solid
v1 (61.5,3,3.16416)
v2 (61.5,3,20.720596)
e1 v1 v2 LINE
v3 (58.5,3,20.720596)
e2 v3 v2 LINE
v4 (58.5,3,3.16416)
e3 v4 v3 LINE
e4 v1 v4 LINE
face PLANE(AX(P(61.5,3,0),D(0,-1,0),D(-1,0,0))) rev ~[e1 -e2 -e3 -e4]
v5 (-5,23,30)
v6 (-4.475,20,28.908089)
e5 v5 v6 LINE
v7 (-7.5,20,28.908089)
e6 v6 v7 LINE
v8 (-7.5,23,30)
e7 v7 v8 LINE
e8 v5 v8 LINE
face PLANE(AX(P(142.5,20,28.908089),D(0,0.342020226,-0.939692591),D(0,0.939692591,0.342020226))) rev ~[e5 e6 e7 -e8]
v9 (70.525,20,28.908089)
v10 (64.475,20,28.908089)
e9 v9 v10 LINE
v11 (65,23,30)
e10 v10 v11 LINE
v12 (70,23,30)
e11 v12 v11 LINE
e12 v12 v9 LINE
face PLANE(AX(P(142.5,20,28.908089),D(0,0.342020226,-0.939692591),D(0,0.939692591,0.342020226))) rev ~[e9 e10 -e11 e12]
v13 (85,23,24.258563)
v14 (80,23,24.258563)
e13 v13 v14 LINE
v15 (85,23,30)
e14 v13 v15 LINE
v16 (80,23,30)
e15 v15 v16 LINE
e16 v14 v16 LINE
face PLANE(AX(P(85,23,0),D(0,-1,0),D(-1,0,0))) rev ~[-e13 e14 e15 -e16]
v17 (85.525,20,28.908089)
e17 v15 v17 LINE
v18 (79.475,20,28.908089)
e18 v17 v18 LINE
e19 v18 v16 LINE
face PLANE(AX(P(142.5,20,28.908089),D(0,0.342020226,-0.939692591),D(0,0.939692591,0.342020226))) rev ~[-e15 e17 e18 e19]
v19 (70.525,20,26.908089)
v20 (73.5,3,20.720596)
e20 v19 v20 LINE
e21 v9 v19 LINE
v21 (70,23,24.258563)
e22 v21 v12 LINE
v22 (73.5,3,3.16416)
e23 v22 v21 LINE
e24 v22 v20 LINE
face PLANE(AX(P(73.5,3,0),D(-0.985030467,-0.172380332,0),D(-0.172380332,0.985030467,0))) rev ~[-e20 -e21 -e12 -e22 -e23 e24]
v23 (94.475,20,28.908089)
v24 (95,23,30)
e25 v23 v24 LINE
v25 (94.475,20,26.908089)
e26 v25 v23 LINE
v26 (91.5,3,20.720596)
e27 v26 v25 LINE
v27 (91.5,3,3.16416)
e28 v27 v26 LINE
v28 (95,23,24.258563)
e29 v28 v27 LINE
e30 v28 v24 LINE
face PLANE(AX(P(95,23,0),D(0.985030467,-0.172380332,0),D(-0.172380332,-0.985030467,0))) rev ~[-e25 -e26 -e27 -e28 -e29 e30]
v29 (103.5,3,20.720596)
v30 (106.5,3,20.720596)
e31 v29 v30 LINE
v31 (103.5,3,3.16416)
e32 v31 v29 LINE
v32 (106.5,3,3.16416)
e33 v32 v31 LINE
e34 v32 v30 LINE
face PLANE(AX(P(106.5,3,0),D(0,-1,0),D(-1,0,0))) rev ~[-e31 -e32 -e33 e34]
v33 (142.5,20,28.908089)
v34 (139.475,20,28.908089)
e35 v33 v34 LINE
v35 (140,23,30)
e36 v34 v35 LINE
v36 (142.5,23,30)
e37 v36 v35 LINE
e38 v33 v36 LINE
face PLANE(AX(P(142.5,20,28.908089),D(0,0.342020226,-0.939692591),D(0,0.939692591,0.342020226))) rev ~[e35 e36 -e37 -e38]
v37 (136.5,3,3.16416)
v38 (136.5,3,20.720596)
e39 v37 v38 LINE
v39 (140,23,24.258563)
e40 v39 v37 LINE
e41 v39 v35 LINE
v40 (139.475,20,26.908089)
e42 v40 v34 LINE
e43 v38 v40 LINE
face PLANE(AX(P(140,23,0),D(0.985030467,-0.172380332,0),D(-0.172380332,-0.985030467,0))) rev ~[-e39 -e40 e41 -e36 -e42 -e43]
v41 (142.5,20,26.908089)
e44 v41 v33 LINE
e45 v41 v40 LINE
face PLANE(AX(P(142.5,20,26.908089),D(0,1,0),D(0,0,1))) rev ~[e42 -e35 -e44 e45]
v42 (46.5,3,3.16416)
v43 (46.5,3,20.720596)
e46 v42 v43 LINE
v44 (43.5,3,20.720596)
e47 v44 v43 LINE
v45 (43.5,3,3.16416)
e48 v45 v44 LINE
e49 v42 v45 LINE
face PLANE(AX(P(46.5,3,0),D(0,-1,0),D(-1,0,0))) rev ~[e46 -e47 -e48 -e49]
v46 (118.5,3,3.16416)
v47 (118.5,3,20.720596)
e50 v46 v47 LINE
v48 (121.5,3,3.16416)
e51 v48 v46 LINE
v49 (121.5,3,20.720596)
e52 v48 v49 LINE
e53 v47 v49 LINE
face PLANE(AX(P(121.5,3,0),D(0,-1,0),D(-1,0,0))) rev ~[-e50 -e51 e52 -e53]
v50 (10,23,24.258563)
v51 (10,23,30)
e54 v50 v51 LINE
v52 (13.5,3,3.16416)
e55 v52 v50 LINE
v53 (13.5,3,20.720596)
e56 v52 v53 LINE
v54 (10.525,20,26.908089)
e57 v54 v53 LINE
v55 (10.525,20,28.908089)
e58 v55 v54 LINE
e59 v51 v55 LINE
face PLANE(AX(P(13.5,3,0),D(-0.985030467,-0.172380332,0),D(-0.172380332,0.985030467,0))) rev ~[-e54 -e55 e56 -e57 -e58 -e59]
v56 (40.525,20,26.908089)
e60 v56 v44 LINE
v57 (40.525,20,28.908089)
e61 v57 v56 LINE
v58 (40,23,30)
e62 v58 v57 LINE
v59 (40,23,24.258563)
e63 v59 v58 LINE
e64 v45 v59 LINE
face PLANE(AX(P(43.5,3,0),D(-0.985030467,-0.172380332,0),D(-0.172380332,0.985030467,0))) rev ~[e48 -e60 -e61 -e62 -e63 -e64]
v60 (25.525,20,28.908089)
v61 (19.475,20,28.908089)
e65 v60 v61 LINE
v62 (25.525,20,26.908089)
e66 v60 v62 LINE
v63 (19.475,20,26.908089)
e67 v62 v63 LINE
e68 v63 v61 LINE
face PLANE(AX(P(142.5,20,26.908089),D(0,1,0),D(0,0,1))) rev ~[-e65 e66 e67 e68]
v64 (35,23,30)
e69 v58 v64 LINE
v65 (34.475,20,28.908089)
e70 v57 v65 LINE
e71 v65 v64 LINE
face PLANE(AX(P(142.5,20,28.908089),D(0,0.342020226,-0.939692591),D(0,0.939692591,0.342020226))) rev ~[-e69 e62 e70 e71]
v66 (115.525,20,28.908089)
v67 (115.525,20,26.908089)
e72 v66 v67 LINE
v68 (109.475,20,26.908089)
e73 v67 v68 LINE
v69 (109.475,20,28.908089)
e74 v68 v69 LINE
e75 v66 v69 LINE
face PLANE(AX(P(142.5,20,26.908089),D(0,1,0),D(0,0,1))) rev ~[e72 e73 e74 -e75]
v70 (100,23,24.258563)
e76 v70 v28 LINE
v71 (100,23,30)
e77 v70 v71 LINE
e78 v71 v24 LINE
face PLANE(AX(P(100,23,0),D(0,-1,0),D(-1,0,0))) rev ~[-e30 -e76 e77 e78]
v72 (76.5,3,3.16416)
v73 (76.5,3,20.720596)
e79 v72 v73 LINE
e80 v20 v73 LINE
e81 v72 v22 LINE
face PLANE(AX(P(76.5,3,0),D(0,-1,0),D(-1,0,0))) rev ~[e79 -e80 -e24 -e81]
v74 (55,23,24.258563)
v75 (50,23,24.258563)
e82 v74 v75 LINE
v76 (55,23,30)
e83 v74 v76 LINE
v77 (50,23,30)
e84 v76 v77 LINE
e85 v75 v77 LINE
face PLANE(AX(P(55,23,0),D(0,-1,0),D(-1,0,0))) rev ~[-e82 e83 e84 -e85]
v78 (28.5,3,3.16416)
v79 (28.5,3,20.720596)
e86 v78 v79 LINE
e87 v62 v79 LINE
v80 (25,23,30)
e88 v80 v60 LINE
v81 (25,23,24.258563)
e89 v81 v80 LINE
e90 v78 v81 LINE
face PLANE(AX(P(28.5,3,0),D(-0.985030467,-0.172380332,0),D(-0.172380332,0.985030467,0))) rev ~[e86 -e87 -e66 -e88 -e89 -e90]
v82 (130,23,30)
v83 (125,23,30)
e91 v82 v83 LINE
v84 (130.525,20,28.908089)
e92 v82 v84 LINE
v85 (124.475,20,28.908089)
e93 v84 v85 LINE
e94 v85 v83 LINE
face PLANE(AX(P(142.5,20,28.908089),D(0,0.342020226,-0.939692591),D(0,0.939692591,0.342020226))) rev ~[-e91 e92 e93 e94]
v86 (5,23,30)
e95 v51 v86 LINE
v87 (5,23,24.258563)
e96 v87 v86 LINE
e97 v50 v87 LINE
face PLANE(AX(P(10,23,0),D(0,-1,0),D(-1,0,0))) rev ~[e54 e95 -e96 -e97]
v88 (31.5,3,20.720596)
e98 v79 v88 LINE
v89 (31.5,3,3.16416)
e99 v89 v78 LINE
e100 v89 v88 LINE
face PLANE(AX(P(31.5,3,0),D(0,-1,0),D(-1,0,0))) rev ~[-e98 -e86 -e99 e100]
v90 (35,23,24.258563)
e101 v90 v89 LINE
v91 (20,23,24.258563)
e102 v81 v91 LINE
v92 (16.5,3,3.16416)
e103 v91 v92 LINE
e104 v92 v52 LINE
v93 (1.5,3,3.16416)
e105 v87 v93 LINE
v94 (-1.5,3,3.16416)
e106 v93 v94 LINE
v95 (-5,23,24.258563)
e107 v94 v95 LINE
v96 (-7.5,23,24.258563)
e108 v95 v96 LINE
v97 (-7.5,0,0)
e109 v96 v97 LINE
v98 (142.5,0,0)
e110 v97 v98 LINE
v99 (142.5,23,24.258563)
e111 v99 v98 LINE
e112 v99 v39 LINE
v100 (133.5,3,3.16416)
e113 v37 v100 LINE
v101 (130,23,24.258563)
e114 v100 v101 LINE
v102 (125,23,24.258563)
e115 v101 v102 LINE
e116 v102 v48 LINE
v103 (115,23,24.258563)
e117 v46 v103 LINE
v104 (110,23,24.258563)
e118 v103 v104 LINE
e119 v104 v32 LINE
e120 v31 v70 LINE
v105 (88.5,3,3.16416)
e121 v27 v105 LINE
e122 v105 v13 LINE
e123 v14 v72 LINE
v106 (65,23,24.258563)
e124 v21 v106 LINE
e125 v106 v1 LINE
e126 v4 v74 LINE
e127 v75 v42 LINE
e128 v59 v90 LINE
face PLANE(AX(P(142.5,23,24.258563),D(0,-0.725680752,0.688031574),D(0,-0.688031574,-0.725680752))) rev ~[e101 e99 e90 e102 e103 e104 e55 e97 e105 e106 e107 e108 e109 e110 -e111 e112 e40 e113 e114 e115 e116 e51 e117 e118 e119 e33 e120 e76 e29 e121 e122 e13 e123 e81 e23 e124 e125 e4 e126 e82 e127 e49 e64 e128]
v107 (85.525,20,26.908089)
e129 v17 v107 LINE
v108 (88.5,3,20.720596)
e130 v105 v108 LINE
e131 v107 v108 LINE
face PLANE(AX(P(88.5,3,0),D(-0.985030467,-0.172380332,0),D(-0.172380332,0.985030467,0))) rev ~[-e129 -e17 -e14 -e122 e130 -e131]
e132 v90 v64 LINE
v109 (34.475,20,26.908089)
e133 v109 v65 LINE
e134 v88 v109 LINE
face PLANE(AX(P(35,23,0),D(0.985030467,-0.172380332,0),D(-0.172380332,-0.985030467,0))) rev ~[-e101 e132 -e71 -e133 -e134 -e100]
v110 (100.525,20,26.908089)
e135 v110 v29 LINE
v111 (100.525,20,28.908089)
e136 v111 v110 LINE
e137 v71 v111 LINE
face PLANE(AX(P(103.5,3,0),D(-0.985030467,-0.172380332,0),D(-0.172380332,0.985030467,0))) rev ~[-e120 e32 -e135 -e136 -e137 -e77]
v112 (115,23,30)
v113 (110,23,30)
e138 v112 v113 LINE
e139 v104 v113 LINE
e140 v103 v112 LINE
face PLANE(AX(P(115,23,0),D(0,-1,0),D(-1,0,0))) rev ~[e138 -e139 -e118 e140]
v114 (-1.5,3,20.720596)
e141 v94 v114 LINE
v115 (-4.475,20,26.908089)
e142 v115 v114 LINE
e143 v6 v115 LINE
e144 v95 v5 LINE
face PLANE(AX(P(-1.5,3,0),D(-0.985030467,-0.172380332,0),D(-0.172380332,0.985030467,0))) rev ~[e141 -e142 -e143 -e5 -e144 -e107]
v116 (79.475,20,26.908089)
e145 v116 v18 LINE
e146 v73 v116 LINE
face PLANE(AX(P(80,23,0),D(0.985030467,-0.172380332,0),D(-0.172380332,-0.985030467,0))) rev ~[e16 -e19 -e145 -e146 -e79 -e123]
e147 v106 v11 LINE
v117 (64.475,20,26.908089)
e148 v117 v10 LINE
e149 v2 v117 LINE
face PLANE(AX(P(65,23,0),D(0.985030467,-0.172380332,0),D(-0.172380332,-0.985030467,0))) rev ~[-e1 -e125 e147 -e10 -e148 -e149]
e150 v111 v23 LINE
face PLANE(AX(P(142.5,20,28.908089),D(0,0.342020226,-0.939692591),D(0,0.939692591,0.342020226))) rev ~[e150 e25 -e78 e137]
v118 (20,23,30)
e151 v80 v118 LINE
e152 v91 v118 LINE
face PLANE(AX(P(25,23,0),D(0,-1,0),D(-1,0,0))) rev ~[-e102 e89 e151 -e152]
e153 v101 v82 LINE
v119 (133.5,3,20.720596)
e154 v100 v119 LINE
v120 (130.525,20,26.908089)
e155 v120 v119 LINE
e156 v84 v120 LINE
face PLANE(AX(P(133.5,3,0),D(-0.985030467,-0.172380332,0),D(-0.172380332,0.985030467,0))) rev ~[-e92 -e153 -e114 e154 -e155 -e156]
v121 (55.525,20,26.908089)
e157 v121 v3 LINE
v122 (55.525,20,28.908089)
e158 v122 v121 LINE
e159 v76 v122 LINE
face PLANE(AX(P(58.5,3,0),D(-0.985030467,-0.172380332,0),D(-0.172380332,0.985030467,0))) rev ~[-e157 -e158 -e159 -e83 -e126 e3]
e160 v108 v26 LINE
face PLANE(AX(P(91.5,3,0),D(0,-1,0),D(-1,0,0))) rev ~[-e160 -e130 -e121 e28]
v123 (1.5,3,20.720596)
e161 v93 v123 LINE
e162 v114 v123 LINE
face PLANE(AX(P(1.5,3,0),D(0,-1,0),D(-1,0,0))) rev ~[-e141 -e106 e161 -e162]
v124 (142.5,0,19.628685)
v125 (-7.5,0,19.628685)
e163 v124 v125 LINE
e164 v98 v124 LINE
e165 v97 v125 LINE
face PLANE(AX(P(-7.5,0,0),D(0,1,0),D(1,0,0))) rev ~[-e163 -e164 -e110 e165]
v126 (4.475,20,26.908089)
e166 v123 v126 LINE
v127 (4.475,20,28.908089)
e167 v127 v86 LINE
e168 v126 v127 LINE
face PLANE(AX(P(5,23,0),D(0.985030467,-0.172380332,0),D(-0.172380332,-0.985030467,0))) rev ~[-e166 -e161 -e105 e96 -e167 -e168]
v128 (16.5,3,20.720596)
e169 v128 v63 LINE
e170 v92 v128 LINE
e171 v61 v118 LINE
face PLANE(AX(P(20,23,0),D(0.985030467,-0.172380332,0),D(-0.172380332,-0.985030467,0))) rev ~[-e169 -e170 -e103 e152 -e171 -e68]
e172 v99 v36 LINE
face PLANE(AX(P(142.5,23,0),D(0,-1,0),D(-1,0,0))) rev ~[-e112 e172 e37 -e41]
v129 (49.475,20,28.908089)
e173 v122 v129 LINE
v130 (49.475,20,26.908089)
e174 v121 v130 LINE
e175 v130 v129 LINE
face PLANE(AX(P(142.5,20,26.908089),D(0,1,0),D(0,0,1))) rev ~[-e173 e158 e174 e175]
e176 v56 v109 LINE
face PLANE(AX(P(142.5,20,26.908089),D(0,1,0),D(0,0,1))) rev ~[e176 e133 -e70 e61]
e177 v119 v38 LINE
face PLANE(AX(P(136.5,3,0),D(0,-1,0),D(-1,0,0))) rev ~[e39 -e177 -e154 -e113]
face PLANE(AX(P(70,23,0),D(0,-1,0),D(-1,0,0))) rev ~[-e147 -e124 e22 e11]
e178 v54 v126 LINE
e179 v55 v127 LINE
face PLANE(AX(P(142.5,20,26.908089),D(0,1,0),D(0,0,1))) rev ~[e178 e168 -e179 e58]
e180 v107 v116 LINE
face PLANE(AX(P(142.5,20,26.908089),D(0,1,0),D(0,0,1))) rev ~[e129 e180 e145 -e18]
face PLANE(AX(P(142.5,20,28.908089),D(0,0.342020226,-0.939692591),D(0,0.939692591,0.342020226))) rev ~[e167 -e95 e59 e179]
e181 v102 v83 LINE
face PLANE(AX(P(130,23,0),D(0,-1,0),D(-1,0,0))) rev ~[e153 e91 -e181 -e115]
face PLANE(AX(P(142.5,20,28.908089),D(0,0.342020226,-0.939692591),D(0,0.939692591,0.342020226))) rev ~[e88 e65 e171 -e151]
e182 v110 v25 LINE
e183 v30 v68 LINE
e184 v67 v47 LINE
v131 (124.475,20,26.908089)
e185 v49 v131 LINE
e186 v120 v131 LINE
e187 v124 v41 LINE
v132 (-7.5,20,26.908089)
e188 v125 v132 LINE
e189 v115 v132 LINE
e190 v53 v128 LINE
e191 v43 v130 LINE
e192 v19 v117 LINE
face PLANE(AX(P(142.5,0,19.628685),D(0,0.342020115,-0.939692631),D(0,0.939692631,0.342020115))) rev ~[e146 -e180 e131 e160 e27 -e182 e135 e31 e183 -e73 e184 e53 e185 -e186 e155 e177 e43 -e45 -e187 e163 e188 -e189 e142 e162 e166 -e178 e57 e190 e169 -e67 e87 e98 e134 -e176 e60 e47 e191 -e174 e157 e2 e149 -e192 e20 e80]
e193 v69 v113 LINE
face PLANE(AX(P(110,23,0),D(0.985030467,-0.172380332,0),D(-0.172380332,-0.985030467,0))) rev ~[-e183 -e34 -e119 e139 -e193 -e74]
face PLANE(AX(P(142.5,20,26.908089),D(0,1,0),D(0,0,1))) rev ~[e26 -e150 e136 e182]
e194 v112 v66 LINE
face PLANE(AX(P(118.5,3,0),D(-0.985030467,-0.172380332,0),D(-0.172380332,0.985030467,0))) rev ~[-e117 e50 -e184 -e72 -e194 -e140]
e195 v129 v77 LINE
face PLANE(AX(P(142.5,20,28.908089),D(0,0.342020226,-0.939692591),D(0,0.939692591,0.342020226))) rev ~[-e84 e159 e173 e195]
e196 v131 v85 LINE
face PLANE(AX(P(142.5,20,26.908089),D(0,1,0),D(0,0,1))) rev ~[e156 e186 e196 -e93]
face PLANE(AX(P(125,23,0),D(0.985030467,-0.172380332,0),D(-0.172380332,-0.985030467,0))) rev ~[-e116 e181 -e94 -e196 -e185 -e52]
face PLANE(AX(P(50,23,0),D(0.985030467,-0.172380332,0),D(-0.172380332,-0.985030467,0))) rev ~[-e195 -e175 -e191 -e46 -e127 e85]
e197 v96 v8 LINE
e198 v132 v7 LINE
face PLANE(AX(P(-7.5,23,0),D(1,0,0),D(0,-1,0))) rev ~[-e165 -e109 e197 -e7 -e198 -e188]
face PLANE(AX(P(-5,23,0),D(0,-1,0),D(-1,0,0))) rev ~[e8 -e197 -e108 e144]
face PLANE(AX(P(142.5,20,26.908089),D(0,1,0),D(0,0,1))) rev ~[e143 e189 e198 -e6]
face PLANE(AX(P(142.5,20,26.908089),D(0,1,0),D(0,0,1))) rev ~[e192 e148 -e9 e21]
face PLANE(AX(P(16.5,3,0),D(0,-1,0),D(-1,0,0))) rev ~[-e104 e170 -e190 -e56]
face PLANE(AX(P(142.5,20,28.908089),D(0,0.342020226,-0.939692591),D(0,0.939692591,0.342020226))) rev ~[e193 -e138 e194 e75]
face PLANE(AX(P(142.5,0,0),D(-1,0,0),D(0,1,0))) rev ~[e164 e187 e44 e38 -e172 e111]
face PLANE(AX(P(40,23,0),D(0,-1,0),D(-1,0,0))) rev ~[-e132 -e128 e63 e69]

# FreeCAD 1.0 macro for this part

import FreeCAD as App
import Part
import Sketcher

V = App.Vector
Q = App.Units.Quantity


def add_polygon(sketch, points):
    """Adds a closed chain of lines whose ends are joined by coincident constraints."""
    first, n = sketch.GeometryCount, len(points)
    for a, b in zip(points, points[1:] + points[:1]):
        sketch.addGeometry(Part.LineSegment(App.Vector(*a, 0), App.Vector(*b, 0)), False)
    for i in range(n):
        sketch.addConstraint(Sketcher.Constraint("Coincident", first + i, 2, first + (i + 1) % n, 1))

doc = App.newDocument("Part")
params = doc.addObject("Spreadsheet::Sheet", "Params")
for row, (alias, value) in enumerate([
    ("sketch1_width", "150 mm"),
    ("sketch1_width2", "3 mm"),
    ("sketch1_width3", "5 mm"),
    ("sketch1_height", "23 mm"),
    ("sketch1_width4", "2.5 mm"),
    ("pad1_length", "30 mm"),
    ("sketch2_width", "23 mm"),
    ("sketch2_height", "2 mm"),
], start=1):
    params.set(f"A{row}", alias)
    params.set(f"B{row}", "=" + value)
    params.setAlias(f"B{row}", alias)

body = doc.addObject("PartDesign::Body", "Body")

sketch1 = body.newObject("Sketcher::SketchObject", "Sketch")
sketch1.AttachmentSupport = (doc.getObject("XY_Plane"), [""])
sketch1.MapMode = "FlatFace"
add_polygon(sketch1, [(-5, 23), (-7.5, 23), (-7.5, 0), (142.5, 0), (142.5, 23), (140, 23), (136.5, 3), (133.5, 3), (130, 23), (125, 23), (121.5, 3), (118.5, 3), (115, 23), (110, 23), (106.5, 3), (103.5, 3), (100, 23), (95, 23), (91.5, 3), (88.5, 3), (85, 23), (80, 23), (76.5, 3), (73.5, 3), (70, 23), (65, 23), (61.5, 3), (58.5, 3), (55, 23), (50, 23), (46.5, 3), (43.5, 3), (40, 23), (35, 23), (31.5, 3), (28.5, 3), (25, 23), (20, 23), (16.5, 3), (13.5, 3), (10, 23), (5, 23), (1.5, 3), (-1.5, 3)])
sketch1.addConstraint([
    Sketcher.Constraint("Horizontal", 0),
    Sketcher.Constraint("Vertical", 1),
    Sketcher.Constraint("Horizontal", 2),
    Sketcher.Constraint("Vertical", 3),
    Sketcher.Constraint("Horizontal", 4),
    Sketcher.Constraint("Horizontal", 6),
    Sketcher.Constraint("Horizontal", 8),
    Sketcher.Constraint("Horizontal", 10),
    Sketcher.Constraint("Horizontal", 12),
    Sketcher.Constraint("Horizontal", 14),
    Sketcher.Constraint("Horizontal", 16),
    Sketcher.Constraint("Horizontal", 18),
    Sketcher.Constraint("Horizontal", 20),
    Sketcher.Constraint("Horizontal", 22),
    Sketcher.Constraint("Horizontal", 24),
    Sketcher.Constraint("Horizontal", 26),
    Sketcher.Constraint("Horizontal", 28),
    Sketcher.Constraint("Horizontal", 30),
    Sketcher.Constraint("Horizontal", 32),
    Sketcher.Constraint("Horizontal", 34),
    Sketcher.Constraint("Horizontal", 36),
    Sketcher.Constraint("Horizontal", 38),
    Sketcher.Constraint("Horizontal", 40),
    Sketcher.Constraint("Horizontal", 42),
    Sketcher.Constraint("Symmetric", 40, 2, 43, 2, -2),
    Sketcher.Constraint("PointOnObject", 1, 2, -1),
    Sketcher.Constraint("Parallel", 5, 9),
    Sketcher.Constraint("Parallel", 7, 11),
    Sketcher.Constraint("Parallel", 9, 13),
    Sketcher.Constraint("Parallel", 11, 15),
    Sketcher.Constraint("Parallel", 13, 17),
    Sketcher.Constraint("Parallel", 15, 19),
    Sketcher.Constraint("Parallel", 17, 21),
    Sketcher.Constraint("Parallel", 19, 23),
    Sketcher.Constraint("Parallel", 21, 25),
    Sketcher.Constraint("Parallel", 23, 27),
    Sketcher.Constraint("Parallel", 25, 29),
    Sketcher.Constraint("Parallel", 27, 31),
    Sketcher.Constraint("Parallel", 29, 33),
    Sketcher.Constraint("Parallel", 31, 35),
    Sketcher.Constraint("Parallel", 33, 37),
    Sketcher.Constraint("Parallel", 35, 39),
    Sketcher.Constraint("Parallel", 37, 41),
    Sketcher.Constraint("Parallel", 39, 43),
    Sketcher.Constraint("Horizontal", 0, 2, 3, 2),
    Sketcher.Constraint("Horizontal", 4, 2, 7, 2),
    Sketcher.Constraint("Horizontal", 6, 2, 9, 2),
    Sketcher.Constraint("Horizontal", 8, 2, 11, 2),
    Sketcher.Constraint("Horizontal", 10, 2, 13, 2),
    Sketcher.Constraint("Horizontal", 12, 2, 15, 2),
    Sketcher.Constraint("Horizontal", 14, 2, 17, 2),
    Sketcher.Constraint("Horizontal", 16, 2, 19, 2),
    Sketcher.Constraint("Horizontal", 18, 2, 21, 2),
    Sketcher.Constraint("Horizontal", 20, 2, 23, 2),
    Sketcher.Constraint("Horizontal", 22, 2, 25, 2),
    Sketcher.Constraint("Horizontal", 24, 2, 27, 2),
    Sketcher.Constraint("Horizontal", 26, 2, 29, 2),
    Sketcher.Constraint("Horizontal", 28, 2, 31, 2),
    Sketcher.Constraint("Horizontal", 30, 2, 33, 2),
    Sketcher.Constraint("Horizontal", 32, 2, 35, 2),
    Sketcher.Constraint("Horizontal", 34, 2, 37, 2),
    Sketcher.Constraint("Horizontal", 38, 2, 41, 2),
    Sketcher.Constraint("Equal", 0, 4),
    Sketcher.Constraint("Equal", 6, 10),
    Sketcher.Constraint("Equal", 8, 12),
    Sketcher.Constraint("Equal", 10, 14),
    Sketcher.Constraint("Equal", 12, 16),
    Sketcher.Constraint("Equal", 14, 18),
    Sketcher.Constraint("Equal", 16, 20),
    Sketcher.Constraint("Equal", 18, 22),
    Sketcher.Constraint("Equal", 20, 24),
    Sketcher.Constraint("Equal", 22, 26),
    Sketcher.Constraint("Equal", 24, 28),
    Sketcher.Constraint("Equal", 26, 30),
    Sketcher.Constraint("Equal", 28, 32),
    Sketcher.Constraint("Equal", 30, 34),
    Sketcher.Constraint("Equal", 32, 36),
    Sketcher.Constraint("Equal", 34, 38),
    Sketcher.Constraint("Equal", 36, 40),
    Sketcher.Constraint("Equal", 38, 42),
    Sketcher.Constraint("Equal", 5, 7),
    Sketcher.Constraint("DistanceX", 2, 1, 2, 2, Q("150 mm")),
    Sketcher.Constraint("DistanceX", 6, 2, 6, 1, Q("3 mm")),
    Sketcher.Constraint("DistanceX", 8, 2, 8, 1, Q("5 mm")),
    Sketcher.Constraint("DistanceY", 1, 2, 1, 1, Q("23 mm")),
    Sketcher.Constraint("DistanceX", 0, 2, 0, 1, Q("2.5 mm")),
    Sketcher.Constraint("DistanceY", -1, 1, 5, 2, Q("3 mm")),
])
sketch1.setExpression("Constraints[125]", "Params.sketch1_width")
sketch1.setExpression("Constraints[126]", "Params.sketch1_width2")
sketch1.setExpression("Constraints[127]", "Params.sketch1_width3")
sketch1.setExpression("Constraints[128]", "Params.sketch1_height")
sketch1.setExpression("Constraints[129]", "Params.sketch1_width4")
pad1 = body.newObject("PartDesign::Pad", "Pad")
pad1.Profile = sketch1
pad1.setExpression("Length", "Params.pad1_length")

sketch2 = body.newObject("Sketcher::SketchObject", "Sketch001")
sketch2.AttachmentSupport = (doc.getObject("YZ_Plane"), [""])
sketch2.MapMode = "FlatFace"
sketch2.AttachmentOffset = App.Placement(V(0, 0, 142.5), App.Rotation())
add_polygon(sketch2, [(20, 28.908089), (23, 30), (0, 30), (0, 19.628685), (20, 26.908089)])
add_polygon(sketch2, [(23, 24.258563), (0, 0), (23, 0)])
sketch2.addConstraint([
    Sketcher.Constraint("Horizontal", 1),
    Sketcher.Constraint("Vertical", 2),
    Sketcher.Constraint("Vertical", 4),
    Sketcher.Constraint("Horizontal", 6),
    Sketcher.Constraint("Vertical", 7),
    Sketcher.Constraint("Coincident", 5, 2, -1, 1),
    Sketcher.Constraint("PointOnObject", 1, 2, -2),
    Sketcher.Constraint("Parallel", 0, 3),
    Sketcher.Constraint("Vertical", 0, 2, 6, 2),
    Sketcher.Constraint("DistanceX", 1, 2, 1, 1, Q("23 mm")),
    Sketcher.Constraint("DistanceY", 4, 1, 4, 2, Q("2 mm")),
    Sketcher.Constraint("Angle", 0, Q("20.000005 deg")),
    Sketcher.Constraint("DistanceY", -1, 1, 0, 2, Q("30 mm")),
    Sketcher.Constraint("DistanceX", -1, 1, 3, 2, Q("20 mm")),
    Sketcher.Constraint("Distance", 5, Q("33.428698 mm")),
])
sketch2.setExpression("Constraints[17]", "Params.sketch2_width")
sketch2.setExpression("Constraints[18]", "Params.sketch2_height")
pocket1 = body.newObject("PartDesign::Pocket", "Pocket")
pocket1.Profile = sketch2
pocket1.Type = "ThroughAll"

doc.recompute()
